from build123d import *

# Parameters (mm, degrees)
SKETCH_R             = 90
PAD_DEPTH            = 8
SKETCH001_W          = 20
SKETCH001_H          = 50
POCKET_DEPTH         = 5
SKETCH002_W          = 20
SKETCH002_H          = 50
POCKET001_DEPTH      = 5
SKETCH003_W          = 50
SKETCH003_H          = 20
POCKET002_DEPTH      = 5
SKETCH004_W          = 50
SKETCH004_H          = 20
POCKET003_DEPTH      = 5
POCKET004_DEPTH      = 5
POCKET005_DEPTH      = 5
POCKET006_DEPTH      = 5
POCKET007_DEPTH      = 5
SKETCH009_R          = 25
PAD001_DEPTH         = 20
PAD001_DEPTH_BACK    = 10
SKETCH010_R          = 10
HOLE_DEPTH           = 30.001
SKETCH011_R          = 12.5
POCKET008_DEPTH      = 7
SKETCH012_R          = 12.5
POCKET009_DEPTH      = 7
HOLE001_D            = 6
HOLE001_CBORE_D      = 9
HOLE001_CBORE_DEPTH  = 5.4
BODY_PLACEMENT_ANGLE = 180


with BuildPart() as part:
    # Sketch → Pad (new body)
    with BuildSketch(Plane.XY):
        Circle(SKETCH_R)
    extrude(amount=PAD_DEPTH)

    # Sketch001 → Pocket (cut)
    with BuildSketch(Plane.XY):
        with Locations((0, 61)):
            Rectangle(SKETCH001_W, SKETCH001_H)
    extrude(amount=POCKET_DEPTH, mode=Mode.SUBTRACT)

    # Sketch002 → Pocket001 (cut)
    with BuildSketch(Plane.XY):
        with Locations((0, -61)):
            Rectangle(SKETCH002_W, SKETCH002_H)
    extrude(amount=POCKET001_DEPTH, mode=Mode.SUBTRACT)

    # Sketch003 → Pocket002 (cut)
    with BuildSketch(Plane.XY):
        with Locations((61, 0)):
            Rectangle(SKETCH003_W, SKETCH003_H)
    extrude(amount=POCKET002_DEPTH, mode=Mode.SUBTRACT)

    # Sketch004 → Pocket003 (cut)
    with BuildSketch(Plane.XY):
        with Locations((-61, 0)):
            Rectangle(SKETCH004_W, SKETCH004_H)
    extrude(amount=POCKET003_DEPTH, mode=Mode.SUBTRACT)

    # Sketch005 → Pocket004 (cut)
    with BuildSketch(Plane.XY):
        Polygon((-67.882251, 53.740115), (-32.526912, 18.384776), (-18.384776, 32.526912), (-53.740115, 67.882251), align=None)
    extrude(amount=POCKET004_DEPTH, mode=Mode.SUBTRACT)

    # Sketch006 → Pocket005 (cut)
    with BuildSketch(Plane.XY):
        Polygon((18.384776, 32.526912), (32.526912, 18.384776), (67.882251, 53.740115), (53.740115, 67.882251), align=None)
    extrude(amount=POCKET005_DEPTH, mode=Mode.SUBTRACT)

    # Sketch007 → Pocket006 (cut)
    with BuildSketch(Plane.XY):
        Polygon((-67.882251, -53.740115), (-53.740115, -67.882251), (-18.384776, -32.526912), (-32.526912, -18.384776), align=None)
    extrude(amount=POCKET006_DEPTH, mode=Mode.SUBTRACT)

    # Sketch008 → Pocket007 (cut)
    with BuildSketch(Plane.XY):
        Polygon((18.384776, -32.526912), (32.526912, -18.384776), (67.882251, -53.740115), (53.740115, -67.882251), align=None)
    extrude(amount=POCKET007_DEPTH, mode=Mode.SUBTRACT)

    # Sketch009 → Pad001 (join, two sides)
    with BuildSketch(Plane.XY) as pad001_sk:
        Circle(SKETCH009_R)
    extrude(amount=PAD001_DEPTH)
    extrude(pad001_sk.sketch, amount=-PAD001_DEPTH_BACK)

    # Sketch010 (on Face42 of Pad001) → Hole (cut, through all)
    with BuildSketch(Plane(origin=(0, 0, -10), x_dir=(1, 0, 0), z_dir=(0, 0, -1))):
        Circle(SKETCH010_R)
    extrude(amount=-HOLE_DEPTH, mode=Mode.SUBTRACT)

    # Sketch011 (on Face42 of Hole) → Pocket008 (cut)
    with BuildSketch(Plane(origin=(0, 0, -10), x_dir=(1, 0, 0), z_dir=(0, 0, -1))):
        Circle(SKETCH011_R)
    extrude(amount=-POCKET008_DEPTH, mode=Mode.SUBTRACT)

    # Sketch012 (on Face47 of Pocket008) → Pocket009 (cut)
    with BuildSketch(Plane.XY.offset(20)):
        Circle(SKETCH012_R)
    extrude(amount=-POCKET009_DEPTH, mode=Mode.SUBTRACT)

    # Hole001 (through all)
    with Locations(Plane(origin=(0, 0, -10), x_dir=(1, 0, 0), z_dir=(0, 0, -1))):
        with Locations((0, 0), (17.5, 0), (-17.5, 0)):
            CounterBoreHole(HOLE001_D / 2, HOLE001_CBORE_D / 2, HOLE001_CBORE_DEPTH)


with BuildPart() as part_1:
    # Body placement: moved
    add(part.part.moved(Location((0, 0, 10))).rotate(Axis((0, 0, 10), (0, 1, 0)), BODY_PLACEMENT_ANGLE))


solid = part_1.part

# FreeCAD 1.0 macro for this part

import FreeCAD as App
import Part
import Sketcher

V = App.Vector
Q = App.Units.Quantity


def add_polygon(sketch, points):
    """Adds a closed chain of lines whose ends are joined by coincident constraints."""
    first, n = sketch.GeometryCount, len(points)
    for a, b in zip(points, points[1:] + points[:1]):
        sketch.addGeometry(Part.LineSegment(App.Vector(*a, 0), App.Vector(*b, 0)), False)
    for i in range(n):
        sketch.addConstraint(Sketcher.Constraint("Coincident", first + i, 2, first + (i + 1) % n, 1))

doc = App.newDocument("Part")
body = doc.addObject("PartDesign::Body", "Body")

# Sketch on XY plane
sketch1 = body.newObject("Sketcher::SketchObject", "Sketch")
sketch1.AttachmentSupport = (doc.getObject("XY_Plane"), [""])
sketch1.MapMode = "FlatFace"
sketch1.addGeometry(Part.Circle(V(0, 0, 0), V(0, 0, 1), 90), False)
sketch1.addConstraint([
    Sketcher.Constraint("Coincident", 0, 3, -1, 1),
    Sketcher.Constraint("Diameter", 0, 180.0),
])
pad1 = body.newObject("PartDesign::Pad", "Pad")
pad1.Profile = sketch1
pad1.Length = 8

# Sketch on XY plane
sketch2 = body.newObject("Sketcher::SketchObject", "Sketch001")
sketch2.AttachmentSupport = (doc.getObject("XY_Plane"), [""])
sketch2.MapMode = "FlatFace"
add_polygon(sketch2, [(-10, 86), (-10, 36), (10, 36), (10, 86)])  # lines 0-3
sketch2.addConstraint([
    Sketcher.Constraint("Vertical", 0),
    Sketcher.Constraint("Horizontal", 1),
    Sketcher.Constraint("Vertical", 2),
    Sketcher.Constraint("Horizontal", 3),
    Sketcher.Constraint("DistanceX", 1, 1, 1, 2, 20.0),
    Sketcher.Constraint("DistanceY", 0, 2, 0, 1, 50.0),
    Sketcher.Constraint("DistanceX", 0, 2, -1, 1, 10.0),
    Sketcher.Constraint("DistanceY", -1, 1, 0, 2, 36.0),
])
pocket1 = body.newObject("PartDesign::Pocket", "Pocket")
pocket1.Profile = sketch2
pocket1.Length = 5
pocket1.Reversed = True

# Sketch on XY plane
sketch3 = body.newObject("Sketcher::SketchObject", "Sketch002")
sketch3.AttachmentSupport = (doc.getObject("XY_Plane"), [""])
sketch3.MapMode = "FlatFace"
add_polygon(sketch3, [(-10, -36), (-10, -86), (10, -86), (10, -36)])  # lines 0-3
sketch3.addConstraint([
    Sketcher.Constraint("Vertical", 0),
    Sketcher.Constraint("Horizontal", 1),
    Sketcher.Constraint("Vertical", 2),
    Sketcher.Constraint("Horizontal", 3),
    Sketcher.Constraint("DistanceX", 1, 1, 1, 2, 20.0),
    Sketcher.Constraint("DistanceY", 0, 2, 0, 1, 50.0),
    Sketcher.Constraint("DistanceX", 0, 2, -1, 1, 10.0),
    Sketcher.Constraint("DistanceY", 0, 2, -1, 1, 86.0),
])
pocket2 = body.newObject("PartDesign::Pocket", "Pocket001")
pocket2.Profile = sketch3
pocket2.Length = 5
pocket2.Reversed = True

# Sketch on XY plane
sketch4 = body.newObject("Sketcher::SketchObject", "Sketch003")
sketch4.AttachmentSupport = (doc.getObject("XY_Plane"), [""])
sketch4.MapMode = "FlatFace"
add_polygon(sketch4, [(36, 10), (36, -10), (86, -10), (86, 10)])  # lines 0-3
sketch4.addConstraint([
    Sketcher.Constraint("Vertical", 0),
    Sketcher.Constraint("Horizontal", 1),
    Sketcher.Constraint("Vertical", 2),
    Sketcher.Constraint("Horizontal", 3),
    Sketcher.Constraint("DistanceX", 1, 1, 1, 2, 50.0),
    Sketcher.Constraint("DistanceY", 0, 2, 0, 1, 20.0),
    Sketcher.Constraint("DistanceX", -1, 1, 0, 2, 36.0),
    Sketcher.Constraint("DistanceY", 0, 2, -1, 1, 10.0),
])
pocket3 = body.newObject("PartDesign::Pocket", "Pocket002")
pocket3.Profile = sketch4
pocket3.Length = 5
pocket3.Reversed = True

# Sketch on XY plane
sketch5 = body.newObject("Sketcher::SketchObject", "Sketch004")
sketch5.AttachmentSupport = (doc.getObject("XY_Plane"), [""])
sketch5.MapMode = "FlatFace"
add_polygon(sketch5, [(-86, 10), (-86, -10), (-36, -10), (-36, 10)])  # lines 0-3
sketch5.addConstraint([
    Sketcher.Constraint("Vertical", 0),
    Sketcher.Constraint("Horizontal", 1),
    Sketcher.Constraint("Vertical", 2),
    Sketcher.Constraint("Horizontal", 3),
    Sketcher.Constraint("DistanceX", 1, 1, 1, 2, 50.0),
    Sketcher.Constraint("DistanceY", 0, 2, 0, 1, 20.0),
    Sketcher.Constraint("DistanceX", 0, 2, -1, 1, 86.0),
    Sketcher.Constraint("DistanceY", 0, 2, -1, 1, 10.0),
])
pocket4 = body.newObject("PartDesign::Pocket", "Pocket003")
pocket4.Profile = sketch5
pocket4.Length = 5
pocket4.Reversed = True

# Sketch on XY plane
sketch6 = body.newObject("Sketcher::SketchObject", "Sketch005")
sketch6.AttachmentSupport = (doc.getObject("XY_Plane"), [""])
sketch6.MapMode = "FlatFace"
add_polygon(sketch6, [(-68, 54), (-33, 18), (-18, 33), (-54, 68)])  # lines 0-3
sketch6.addConstraint([
    Sketcher.Constraint("Perpendicular", 0, 1),
    Sketcher.Constraint("Perpendicular", 1, 2),
    Sketcher.Constraint("Perpendicular", 2, 3),
    Sketcher.Constraint("Angle", 0, Q("-45 deg")),
    Sketcher.Constraint("Distance", 0, 50.0),
    Sketcher.Constraint("Distance", 1, 20.000001),
    Sketcher.Constraint("DistanceY", -1, 1, 2, 2, 67.882251),
    Sketcher.Constraint("DistanceX", 3, 2, -1, 1, 67.882251),
])
pocket5 = body.newObject("PartDesign::Pocket", "Pocket004")
pocket5.Profile = sketch6
pocket5.Length = 5
pocket5.Reversed = True

# Sketch on XY plane
sketch7 = body.newObject("Sketcher::SketchObject", "Sketch006")
sketch7.AttachmentSupport = (doc.getObject("XY_Plane"), [""])
sketch7.MapMode = "FlatFace"
add_polygon(sketch7, [(18, 33), (33, 18), (68, 54), (54, 68)])  # lines 0-3
sketch7.addConstraint([
    Sketcher.Constraint("Perpendicular", 0, 1),
    Sketcher.Constraint("Perpendicular", 1, 2),
    Sketcher.Constraint("Perpendicular", 2, 3),
    Sketcher.Constraint("Angle", 0, Q("-45 deg")),
    Sketcher.Constraint("Distance", 0, 20.000001),
    Sketcher.Constraint("Distance", 1, 50.0),
    Sketcher.Constraint("DistanceX", -1, 1, 1, 2, 67.882251),
    Sketcher.Constraint("DistanceY", -1, 1, 2, 2, 67.882251),
])
pocket6 = body.newObject("PartDesign::Pocket", "Pocket005")
pocket6.Profile = sketch7
pocket6.Length = 5
pocket6.Reversed = True

# Sketch on XY plane
sketch8 = body.newObject("Sketcher::SketchObject", "Sketch007")
sketch8.AttachmentSupport = (doc.getObject("XY_Plane"), [""])
sketch8.MapMode = "FlatFace"
add_polygon(sketch8, [(-68, -54), (-54, -68), (-18, -33), (-33, -18)])  # lines 0-3
sketch8.addConstraint([
    Sketcher.Constraint("Perpendicular", 0, 1),
    Sketcher.Constraint("Perpendicular", 1, 2),
    Sketcher.Constraint("Perpendicular", 2, 3),
    Sketcher.Constraint("Angle", 0, Q("-45 deg")),
    Sketcher.Constraint("Distance", 0, 20.000001),
    Sketcher.Constraint("Distance", 1, 50.0),
    Sketcher.Constraint("DistanceY", 0, 2, -1, 1, 67.882251),
    Sketcher.Constraint("DistanceX", 3, 2, -1, 1, 67.882251),
])
pocket7 = body.newObject("PartDesign::Pocket", "Pocket006")
pocket7.Profile = sketch8
pocket7.Length = 5
pocket7.Reversed = True

# Sketch on XY plane
sketch9 = body.newObject("Sketcher::SketchObject", "Sketch008")
sketch9.AttachmentSupport = (doc.getObject("XY_Plane"), [""])
sketch9.MapMode = "FlatFace"
add_polygon(sketch9, [(33, -18), (18, -33), (54, -68), (68, -54)])  # lines 0-3
sketch9.addConstraint([
    Sketcher.Constraint("Perpendicular", 0, 1),
    Sketcher.Constraint("Perpendicular", 1, 2),
    Sketcher.Constraint("Perpendicular", 2, 3),
    Sketcher.Constraint("Angle", 0, Q("-135 deg")),
    Sketcher.Constraint("Distance", 0, 20.000001),
    Sketcher.Constraint("Distance", 1, 50.0),
    Sketcher.Constraint("DistanceY", 1, 2, -1, 1, 67.882251),
    Sketcher.Constraint("DistanceX", -1, 1, 2, 2, 67.882251),
])
pocket8 = body.newObject("PartDesign::Pocket", "Pocket007")
pocket8.Profile = sketch9
pocket8.Length = 5
pocket8.Reversed = True

# Sketch on XY plane
sketch10 = body.newObject("Sketcher::SketchObject", "Sketch009")
sketch10.AttachmentSupport = (doc.getObject("XY_Plane"), [""])
sketch10.MapMode = "FlatFace"
sketch10.addGeometry(Part.Circle(V(0, 0, 0), V(0, 0, 1), 25), False)
sketch10.addConstraint([
    Sketcher.Constraint("Coincident", 0, 3, -1, 1),
    Sketcher.Constraint("Diameter", 0, 50.0),
])
pad2 = body.newObject("PartDesign::Pad", "Pad001")
pad2.Profile = sketch10
pad2.Type = "TwoLengths"
pad2.Length = 20
pad2.Length2 = 10

# Sketch on XY plane
sketch11 = body.newObject("Sketcher::SketchObject", "Sketch010")
sketch11.AttachmentSupport = (doc.getObject("XY_Plane"), [""])
sketch11.MapMode = "FlatFace"
sketch11.AttachmentOffset = App.Placement(V(0, 0, -10), App.Rotation())
sketch11.addGeometry(Part.Circle(V(0, 0, 0), V(0, 0, 1), 10), False)
sketch11.addConstraint([
    Sketcher.Constraint("Coincident", 0, 3, -1, 1),
    Sketcher.Constraint("Diameter", 0, 20.0),
])
pocket9 = body.newObject("PartDesign::Pocket", "Pocket008")
pocket9.Profile = sketch11
pocket9.Type = "ThroughAll"
pocket9.Reversed = True

# Sketch on XY plane
sketch12 = body.newObject("Sketcher::SketchObject", "Sketch011")
sketch12.AttachmentSupport = (doc.getObject("XY_Plane"), [""])
sketch12.MapMode = "FlatFace"
sketch12.AttachmentOffset = App.Placement(V(0, 0, -10), App.Rotation())
sketch12.addGeometry(Part.Circle(V(0, 0, 0), V(0, 0, 1), 12), False)
sketch12.addConstraint([
    Sketcher.Constraint("Coincident", 0, 3, -1, 1),
    Sketcher.Constraint("Diameter", 0, 25.0),
])
pocket10 = body.newObject("PartDesign::Pocket", "Pocket009")
pocket10.Profile = sketch12
pocket10.Length = 7
pocket10.Reversed = True

# Sketch on XY plane
sketch13 = body.newObject("Sketcher::SketchObject", "Sketch012")
sketch13.AttachmentSupport = (doc.getObject("XY_Plane"), [""])
sketch13.MapMode = "FlatFace"
sketch13.AttachmentOffset = App.Placement(V(0, 0, 20), App.Rotation())
sketch13.addGeometry(Part.Circle(V(0, 0, 0), V(0, 0, 1), 12), False)
sketch13.addConstraint([
    Sketcher.Constraint("Coincident", 0, 3, -1, 1),
    Sketcher.Constraint("Diameter", 0, 25.0),
])
pocket11 = body.newObject("PartDesign::Pocket", "Pocket010")
pocket11.Profile = sketch13
pocket11.Length = 7

# Sketch on XY plane
sketch14 = body.newObject("Sketcher::SketchObject", "Sketch013")
sketch14.AttachmentSupport = (doc.getObject("XY_Plane"), [""])
sketch14.MapMode = "FlatFace"
sketch14.AttachmentOffset = App.Placement(V(0, 0, -10), App.Rotation())
sketch14.addGeometry([
    Part.Circle(V(0, 0, 0), V(0, 0, 1), 3),
    Part.Circle(V(17.5, 0, 0), V(0, 0, 1), 3),
    Part.Circle(V(-17.5, 0, 0), V(0, 0, 1), 3),
], False)
sketch14.addConstraint([
    Sketcher.Constraint("Coincident", 0, 3, -1, 1),
    Sketcher.Constraint("Equal", 0, 1),
    Sketcher.Constraint("Equal", 1, 2),
    Sketcher.Constraint("Symmetric", 1, 3, 2, 3, -1, 1),
    Sketcher.Constraint("PointOnObject", 1, 3, -1),
    Sketcher.Constraint("Diameter", 0, 6.0),
    Sketcher.Constraint("DistanceX", 2, 3, 1, 3, 35.0),
])
doc.recompute()
hole = body.newObject("PartDesign::Hole", "Hole")
hole.Profile = sketch14
hole.ThreadType = "None"
hole.Diameter = 6
hole.DepthType = "ThroughAll"
hole.HoleCutType = "Counterbore"
hole.HoleCutDiameter = 9
hole.HoleCutDepth = 5.4
hole.Reversed = True
body2 = doc.addObject("PartDesign::Body", "Body001")
doc.recompute()

body.Placement = App.Placement(V(0, 0, 10), App.Rotation(V(0, 1, 0), 180))
boolean = body2.newObject("PartDesign::Boolean", "Boolean")
boolean.Type = "Fuse"
boolean.addObjects([body])

doc.recompute()
